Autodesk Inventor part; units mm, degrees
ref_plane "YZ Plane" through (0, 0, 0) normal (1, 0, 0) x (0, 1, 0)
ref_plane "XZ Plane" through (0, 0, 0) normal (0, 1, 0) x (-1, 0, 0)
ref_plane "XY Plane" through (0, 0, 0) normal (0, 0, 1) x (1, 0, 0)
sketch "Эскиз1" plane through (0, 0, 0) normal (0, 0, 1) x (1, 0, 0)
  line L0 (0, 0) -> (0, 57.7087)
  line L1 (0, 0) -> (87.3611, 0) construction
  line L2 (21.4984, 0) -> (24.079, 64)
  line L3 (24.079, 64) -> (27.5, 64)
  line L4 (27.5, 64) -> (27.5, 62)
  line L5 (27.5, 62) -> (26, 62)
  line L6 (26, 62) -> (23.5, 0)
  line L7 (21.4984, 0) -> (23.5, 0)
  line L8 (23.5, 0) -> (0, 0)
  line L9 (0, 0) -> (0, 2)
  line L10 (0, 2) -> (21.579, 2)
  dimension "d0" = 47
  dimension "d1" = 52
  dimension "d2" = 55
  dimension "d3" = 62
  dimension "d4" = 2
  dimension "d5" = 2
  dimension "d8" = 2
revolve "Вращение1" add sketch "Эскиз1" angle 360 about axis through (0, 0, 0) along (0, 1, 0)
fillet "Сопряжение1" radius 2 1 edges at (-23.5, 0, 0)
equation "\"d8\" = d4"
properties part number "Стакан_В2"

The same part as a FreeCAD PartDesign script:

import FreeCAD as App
import Part
import Sketcher
Q = App.Units.Quantity


def edges_at(feature, points):
    """Names of the edges that pass closest to the given points."""
    edges = feature.Shape.Edges
    near = lambda p: min(range(len(edges)), key=lambda i: edges[i].distToShape(Part.Vertex(*p))[0])
    return sorted({f"Edge{near(p) + 1}" for p in points})

doc = App.newDocument("Part")
body = doc.addObject("PartDesign::Body", "Body")

# Sketch on XY plane
sketch1 = body.newObject("Sketcher::SketchObject", "Sketch")
sketch1.AttachmentSupport = (doc.getObject("XY_Plane"), [""])
sketch1.MapMode = "FlatFace"
sketch1.addGeometry([
    Part.LineSegment(App.Vector(0, 2, 0), App.Vector(0, 0, 0)),  # 0
    Part.LineSegment(App.Vector(0, 0, 0), App.Vector(23.5, 0, 0)),  # 1
    Part.LineSegment(App.Vector(23.5, 0, 0), App.Vector(26, 62, 0)),  # 2
    Part.LineSegment(App.Vector(26, 62, 0), App.Vector(27.5, 62, 0)),  # 3
    Part.LineSegment(App.Vector(27.5, 62, 0), App.Vector(27.5, 64, 0)),  # 4
    Part.LineSegment(App.Vector(27.5, 64, 0), App.Vector(24.079, 64, 0)),  # 5
    Part.LineSegment(App.Vector(24.079, 64, 0), App.Vector(21.579044, 1.999998, 0)),  # 6
    Part.LineSegment(App.Vector(21.579, 2, 0), App.Vector(0, 2, 0)),  # 7
], False)
sketch1.addConstraint([
    Sketcher.Constraint("Coincident", 0, 2, 1, 1),
    Sketcher.Constraint("Coincident", 1, 2, 2, 1),
    Sketcher.Constraint("Coincident", 2, 2, 3, 1),
    Sketcher.Constraint("Coincident", 3, 2, 4, 1),
    Sketcher.Constraint("Coincident", 4, 2, 5, 1),
    Sketcher.Constraint("Coincident", 5, 2, 6, 1),
    Sketcher.Constraint("Coincident", 6, 2, 7, 1),
    Sketcher.Constraint("Coincident", 7, 2, 0, 1),
    Sketcher.Constraint("Vertical", 0),
    Sketcher.Constraint("Horizontal", 1),
    Sketcher.Constraint("Horizontal", 3),
    Sketcher.Constraint("Vertical", 4),
    Sketcher.Constraint("Horizontal", 5),
    Sketcher.Constraint("Horizontal", 7),
    Sketcher.Constraint("Coincident", 0, 2, -1, 1),
    Sketcher.Constraint("Parallel", 2, 6),
    Sketcher.Constraint("Equal", 0, 4),
    Sketcher.Constraint("DistanceY", 0, 2, 0, 1, Q("2 mm")),
    Sketcher.Constraint("DistanceY", -1, 1, 2, 2, Q("62 mm")),
    Sketcher.Constraint("DistanceX", 1, 1, 1, 2, Q("23.5 mm")),
    Sketcher.Constraint("DistanceX", 3, 1, 3, 2, Q("1.5 mm")),
    Sketcher.Constraint("DistanceX", -1, 1, 2, 2, Q("26 mm")),
    Sketcher.Constraint("DistanceX", 5, 2, 5, 1, Q("3.421 mm")),
])
revolution = body.newObject("PartDesign::Revolution", "Revolution")
revolution.Profile = sketch1
revolution.ReferenceAxis = (sketch1, ["V_Axis"])
revolution.Angle = 360
doc.recompute()

fillet = body.newObject("PartDesign::Fillet", "Fillet")
fillet.Base = (revolution, edges_at(revolution, [(-23.5, 0, 0)]))
fillet.Radius = 2

doc.recompute()
